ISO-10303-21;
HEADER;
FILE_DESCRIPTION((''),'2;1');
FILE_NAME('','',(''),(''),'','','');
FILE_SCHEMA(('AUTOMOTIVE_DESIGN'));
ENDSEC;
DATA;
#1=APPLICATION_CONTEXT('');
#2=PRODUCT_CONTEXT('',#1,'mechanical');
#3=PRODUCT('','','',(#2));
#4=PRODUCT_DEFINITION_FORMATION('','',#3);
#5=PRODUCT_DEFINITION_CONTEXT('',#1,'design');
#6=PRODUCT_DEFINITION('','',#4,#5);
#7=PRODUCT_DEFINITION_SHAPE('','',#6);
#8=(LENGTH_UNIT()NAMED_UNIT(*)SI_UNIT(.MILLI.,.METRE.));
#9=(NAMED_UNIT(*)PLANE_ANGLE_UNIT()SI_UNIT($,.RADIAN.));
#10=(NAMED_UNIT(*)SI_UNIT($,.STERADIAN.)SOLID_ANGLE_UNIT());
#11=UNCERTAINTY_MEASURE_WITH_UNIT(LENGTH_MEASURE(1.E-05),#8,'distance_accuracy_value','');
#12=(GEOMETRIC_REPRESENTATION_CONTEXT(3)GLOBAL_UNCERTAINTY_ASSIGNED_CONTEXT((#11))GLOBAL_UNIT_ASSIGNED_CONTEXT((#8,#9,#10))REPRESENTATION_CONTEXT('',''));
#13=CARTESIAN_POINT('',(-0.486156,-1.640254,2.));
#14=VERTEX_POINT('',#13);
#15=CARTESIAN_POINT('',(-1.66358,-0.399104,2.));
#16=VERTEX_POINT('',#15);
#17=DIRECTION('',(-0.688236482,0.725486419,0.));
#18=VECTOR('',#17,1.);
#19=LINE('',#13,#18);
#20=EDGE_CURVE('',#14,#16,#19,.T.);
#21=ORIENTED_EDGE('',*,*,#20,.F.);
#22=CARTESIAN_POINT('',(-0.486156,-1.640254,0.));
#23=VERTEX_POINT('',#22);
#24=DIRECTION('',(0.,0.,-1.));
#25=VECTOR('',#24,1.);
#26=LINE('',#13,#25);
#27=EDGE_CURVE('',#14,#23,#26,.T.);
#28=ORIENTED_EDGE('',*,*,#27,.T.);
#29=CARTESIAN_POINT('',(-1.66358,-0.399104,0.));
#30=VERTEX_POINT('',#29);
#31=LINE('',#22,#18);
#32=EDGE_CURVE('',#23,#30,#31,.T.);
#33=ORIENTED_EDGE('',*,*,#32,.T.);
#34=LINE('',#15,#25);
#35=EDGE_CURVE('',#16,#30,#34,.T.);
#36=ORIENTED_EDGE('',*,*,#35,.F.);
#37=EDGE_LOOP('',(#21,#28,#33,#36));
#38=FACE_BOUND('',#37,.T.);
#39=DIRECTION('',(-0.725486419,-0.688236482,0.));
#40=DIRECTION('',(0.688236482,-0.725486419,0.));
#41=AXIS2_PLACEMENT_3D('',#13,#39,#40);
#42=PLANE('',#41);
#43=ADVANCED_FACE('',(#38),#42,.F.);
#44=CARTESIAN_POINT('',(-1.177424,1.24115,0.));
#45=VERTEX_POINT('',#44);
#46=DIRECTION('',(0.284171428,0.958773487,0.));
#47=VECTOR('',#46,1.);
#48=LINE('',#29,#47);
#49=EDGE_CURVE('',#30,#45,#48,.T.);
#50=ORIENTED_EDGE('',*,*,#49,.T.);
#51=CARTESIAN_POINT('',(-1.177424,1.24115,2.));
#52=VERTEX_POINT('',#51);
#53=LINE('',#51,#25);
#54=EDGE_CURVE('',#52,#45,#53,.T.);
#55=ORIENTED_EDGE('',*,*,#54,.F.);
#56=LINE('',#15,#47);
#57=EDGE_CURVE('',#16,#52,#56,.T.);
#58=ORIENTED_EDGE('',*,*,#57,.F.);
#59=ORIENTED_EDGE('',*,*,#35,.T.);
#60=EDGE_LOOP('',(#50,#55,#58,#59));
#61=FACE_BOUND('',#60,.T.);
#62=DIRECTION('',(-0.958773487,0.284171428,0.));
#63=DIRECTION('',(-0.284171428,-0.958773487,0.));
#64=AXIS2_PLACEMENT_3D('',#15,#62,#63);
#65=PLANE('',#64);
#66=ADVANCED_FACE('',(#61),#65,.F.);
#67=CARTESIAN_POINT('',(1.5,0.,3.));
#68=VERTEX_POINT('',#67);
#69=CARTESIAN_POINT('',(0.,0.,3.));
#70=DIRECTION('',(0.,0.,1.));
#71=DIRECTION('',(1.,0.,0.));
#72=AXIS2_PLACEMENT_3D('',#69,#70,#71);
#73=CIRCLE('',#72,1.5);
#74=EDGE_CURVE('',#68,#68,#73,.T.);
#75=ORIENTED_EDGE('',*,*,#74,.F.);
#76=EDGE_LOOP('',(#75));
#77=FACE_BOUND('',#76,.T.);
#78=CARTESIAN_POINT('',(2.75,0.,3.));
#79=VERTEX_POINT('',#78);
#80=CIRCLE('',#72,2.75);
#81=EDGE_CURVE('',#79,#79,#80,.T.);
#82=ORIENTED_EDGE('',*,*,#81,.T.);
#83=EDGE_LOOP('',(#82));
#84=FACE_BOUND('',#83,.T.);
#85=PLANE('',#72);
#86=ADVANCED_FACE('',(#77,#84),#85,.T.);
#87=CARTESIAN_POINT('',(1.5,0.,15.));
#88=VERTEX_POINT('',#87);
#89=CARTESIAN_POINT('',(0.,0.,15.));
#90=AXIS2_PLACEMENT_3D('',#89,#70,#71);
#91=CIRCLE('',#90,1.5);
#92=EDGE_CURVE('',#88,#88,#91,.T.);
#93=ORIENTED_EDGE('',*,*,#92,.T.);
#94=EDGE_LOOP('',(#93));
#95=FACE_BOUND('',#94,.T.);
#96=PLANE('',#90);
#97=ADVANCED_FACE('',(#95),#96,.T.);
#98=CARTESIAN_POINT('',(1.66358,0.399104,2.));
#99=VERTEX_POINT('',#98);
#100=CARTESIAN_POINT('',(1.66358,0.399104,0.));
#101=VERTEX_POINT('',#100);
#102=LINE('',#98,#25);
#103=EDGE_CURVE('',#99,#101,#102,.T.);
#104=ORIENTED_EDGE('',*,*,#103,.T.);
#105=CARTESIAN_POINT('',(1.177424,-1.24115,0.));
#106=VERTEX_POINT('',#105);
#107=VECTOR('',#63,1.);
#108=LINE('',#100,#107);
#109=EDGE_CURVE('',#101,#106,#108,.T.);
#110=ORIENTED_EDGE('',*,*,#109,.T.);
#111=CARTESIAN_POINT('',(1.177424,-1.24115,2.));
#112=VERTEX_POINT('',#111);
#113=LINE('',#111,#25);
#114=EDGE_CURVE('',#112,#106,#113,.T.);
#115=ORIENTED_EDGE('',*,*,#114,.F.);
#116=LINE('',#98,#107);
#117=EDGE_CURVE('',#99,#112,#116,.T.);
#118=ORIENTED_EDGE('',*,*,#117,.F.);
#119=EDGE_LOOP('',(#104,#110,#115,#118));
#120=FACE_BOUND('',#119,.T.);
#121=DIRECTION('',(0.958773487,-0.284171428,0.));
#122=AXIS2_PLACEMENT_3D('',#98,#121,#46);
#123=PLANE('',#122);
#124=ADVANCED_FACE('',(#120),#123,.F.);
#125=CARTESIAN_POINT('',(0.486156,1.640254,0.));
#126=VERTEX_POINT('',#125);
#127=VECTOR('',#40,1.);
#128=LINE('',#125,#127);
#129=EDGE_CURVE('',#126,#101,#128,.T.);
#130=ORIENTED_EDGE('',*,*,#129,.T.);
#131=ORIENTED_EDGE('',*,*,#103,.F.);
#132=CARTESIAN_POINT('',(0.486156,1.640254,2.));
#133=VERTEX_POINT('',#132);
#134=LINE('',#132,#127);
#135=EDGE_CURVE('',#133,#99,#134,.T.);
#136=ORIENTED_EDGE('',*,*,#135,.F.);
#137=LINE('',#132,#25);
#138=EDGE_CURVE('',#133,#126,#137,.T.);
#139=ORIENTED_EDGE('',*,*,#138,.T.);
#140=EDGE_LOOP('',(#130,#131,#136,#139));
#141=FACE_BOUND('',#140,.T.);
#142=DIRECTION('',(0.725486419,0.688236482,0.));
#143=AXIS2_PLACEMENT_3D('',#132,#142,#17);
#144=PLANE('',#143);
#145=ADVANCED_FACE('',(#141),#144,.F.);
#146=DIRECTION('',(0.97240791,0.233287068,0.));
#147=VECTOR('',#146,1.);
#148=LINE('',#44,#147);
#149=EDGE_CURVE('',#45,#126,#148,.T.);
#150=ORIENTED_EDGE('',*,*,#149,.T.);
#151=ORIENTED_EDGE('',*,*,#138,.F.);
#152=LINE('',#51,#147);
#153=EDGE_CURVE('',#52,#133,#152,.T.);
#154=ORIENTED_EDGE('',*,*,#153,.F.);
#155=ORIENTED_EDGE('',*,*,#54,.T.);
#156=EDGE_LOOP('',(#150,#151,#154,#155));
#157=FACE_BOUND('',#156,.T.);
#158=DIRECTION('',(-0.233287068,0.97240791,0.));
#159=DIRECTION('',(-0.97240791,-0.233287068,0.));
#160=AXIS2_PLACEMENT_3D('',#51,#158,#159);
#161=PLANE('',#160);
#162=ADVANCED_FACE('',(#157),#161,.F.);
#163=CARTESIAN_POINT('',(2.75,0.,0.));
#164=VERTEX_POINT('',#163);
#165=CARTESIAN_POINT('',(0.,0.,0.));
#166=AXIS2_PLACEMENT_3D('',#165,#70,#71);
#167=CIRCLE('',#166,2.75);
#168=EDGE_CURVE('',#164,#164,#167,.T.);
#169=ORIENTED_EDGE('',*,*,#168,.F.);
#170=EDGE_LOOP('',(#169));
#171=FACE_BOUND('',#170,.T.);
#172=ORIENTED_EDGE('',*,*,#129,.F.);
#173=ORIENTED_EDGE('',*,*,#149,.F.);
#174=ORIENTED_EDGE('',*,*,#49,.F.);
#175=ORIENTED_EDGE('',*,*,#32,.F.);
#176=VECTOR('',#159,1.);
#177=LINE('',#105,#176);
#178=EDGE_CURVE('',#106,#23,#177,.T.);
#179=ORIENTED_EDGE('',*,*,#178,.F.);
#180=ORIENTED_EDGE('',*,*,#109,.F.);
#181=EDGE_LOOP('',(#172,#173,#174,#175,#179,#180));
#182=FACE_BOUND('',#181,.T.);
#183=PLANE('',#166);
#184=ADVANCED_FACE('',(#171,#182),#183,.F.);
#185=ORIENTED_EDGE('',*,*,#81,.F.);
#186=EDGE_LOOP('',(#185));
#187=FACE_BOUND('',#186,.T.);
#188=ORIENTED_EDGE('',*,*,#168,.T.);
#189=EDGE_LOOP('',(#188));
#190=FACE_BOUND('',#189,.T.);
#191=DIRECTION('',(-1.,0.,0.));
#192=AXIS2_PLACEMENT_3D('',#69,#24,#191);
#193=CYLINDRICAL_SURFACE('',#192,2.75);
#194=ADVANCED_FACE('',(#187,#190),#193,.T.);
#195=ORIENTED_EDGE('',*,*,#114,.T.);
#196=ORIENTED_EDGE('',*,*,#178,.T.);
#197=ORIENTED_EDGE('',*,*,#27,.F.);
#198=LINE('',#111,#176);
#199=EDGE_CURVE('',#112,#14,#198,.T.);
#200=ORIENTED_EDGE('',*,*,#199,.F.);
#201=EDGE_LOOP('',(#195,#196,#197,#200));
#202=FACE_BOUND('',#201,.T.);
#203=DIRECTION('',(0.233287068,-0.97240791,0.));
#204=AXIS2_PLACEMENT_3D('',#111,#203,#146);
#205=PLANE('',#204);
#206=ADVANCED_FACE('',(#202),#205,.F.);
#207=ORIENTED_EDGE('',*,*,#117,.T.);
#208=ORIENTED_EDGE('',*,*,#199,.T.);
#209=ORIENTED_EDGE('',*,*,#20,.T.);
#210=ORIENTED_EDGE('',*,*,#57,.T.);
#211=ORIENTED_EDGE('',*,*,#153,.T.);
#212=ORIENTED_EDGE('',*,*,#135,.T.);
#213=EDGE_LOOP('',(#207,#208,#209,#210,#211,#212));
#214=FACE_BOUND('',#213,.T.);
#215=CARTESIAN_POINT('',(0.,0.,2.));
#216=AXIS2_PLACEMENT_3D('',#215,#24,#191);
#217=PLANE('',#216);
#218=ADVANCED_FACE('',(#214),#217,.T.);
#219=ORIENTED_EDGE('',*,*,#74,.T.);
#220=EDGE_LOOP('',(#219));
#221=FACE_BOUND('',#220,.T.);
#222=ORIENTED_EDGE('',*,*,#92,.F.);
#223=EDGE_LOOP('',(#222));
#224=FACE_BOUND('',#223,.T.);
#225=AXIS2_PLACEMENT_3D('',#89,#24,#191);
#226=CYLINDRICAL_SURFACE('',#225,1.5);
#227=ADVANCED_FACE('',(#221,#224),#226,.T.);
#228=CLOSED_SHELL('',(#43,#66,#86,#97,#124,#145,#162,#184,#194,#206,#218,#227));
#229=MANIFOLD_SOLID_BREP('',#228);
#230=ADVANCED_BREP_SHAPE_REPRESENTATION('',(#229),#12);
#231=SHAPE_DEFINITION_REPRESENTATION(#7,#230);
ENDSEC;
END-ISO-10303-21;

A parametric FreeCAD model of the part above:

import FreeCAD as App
import Part
import Sketcher
from FreeCAD import Vector

doc = App.newDocument("Part")
params = doc.addObject("Spreadsheet::Sheet", "Params")
for row, (alias, value) in enumerate([
    ("sketch1_diameter", "5.5 mm"),
    ("pad1_length", "3 mm"),
    ("sketch2_diameter", "3 mm"),
    ("pad2_length", "12 mm"),
    ("pocket1_length", "2 mm"),
], start=1):
    params.set(f"A{row}", alias)
    params.set(f"B{row}", "=" + value)
    params.setAlias(f"B{row}", alias)

body = doc.addObject("PartDesign::Body", "Body")

sketch1 = doc.addObject("Sketcher::SketchObject", "Sketch")
body.addObject(sketch1)
sketch1.AttachmentSupport = (doc.XY_Plane, [""])
sketch1.MapMode = "FlatFace"
sketch1.addGeometry(Part.Circle(Vector(0, 0, 0), Vector(0, 0, 1), 2.8), False)
sketch1.addConstraint([
    Sketcher.Constraint("Coincident", 0, 3, -1, 1),
    Sketcher.Constraint("Diameter", 0, 5.5),
])
sketch1.setExpression("Constraints[1]", "Params.sketch1_diameter")
pad1 = doc.addObject("PartDesign::Pad", "Pad")
body.addObject(pad1)
pad1.Profile = sketch1
pad1.setExpression("Length", "Params.pad1_length")

sketch2 = doc.addObject("Sketcher::SketchObject", "Sketch001")
body.addObject(sketch2)
sketch2.AttachmentSupport = (doc.XY_Plane, [""])
sketch2.MapMode = "FlatFace"
sketch2.AttachmentOffset = App.Placement(Vector(0, 0, 3), App.Rotation())
sketch2.addGeometry(Part.Circle(Vector(0, 0, 0), Vector(0, 0, 1), 1.5), False)
sketch2.addConstraint([
    Sketcher.Constraint("Coincident", 0, 3, -1, 1),
    Sketcher.Constraint("Diameter", 0, 3.0),
])
sketch2.setExpression("Constraints[1]", "Params.sketch2_diameter")
pad2 = doc.addObject("PartDesign::Pad", "Pad001")
body.addObject(pad2)
pad2.Profile = sketch2
pad2.setExpression("Length", "Params.pad2_length")

sketch3 = doc.addObject("Sketcher::SketchObject", "Sketch002")
body.addObject(sketch3)
sketch3.AttachmentSupport = (doc.XY_Plane, [""])
sketch3.MapMode = "FlatFace"
sketch3.addGeometry([
    Part.LineSegment(Vector(-1.7, -0.4, 0), Vector(-1.2, 1.2, 0)),
    Part.LineSegment(Vector(-1.2, 1.2, 0), Vector(0.5, 1.6, 0)),
    Part.LineSegment(Vector(0.5, 1.6, 0), Vector(1.7, 0.4, 0)),
    Part.LineSegment(Vector(1.7, 0.4, 0), Vector(1.2, -1.2, 0)),
    Part.LineSegment(Vector(1.2, -1.2, 0), Vector(-0.5, -1.6, 0)),
    Part.LineSegment(Vector(-0.5, -1.6, 0), Vector(-1.7, -0.4, 0)),
], False)
sketch3.addConstraint([
    Sketcher.Constraint("Coincident", 0, 2, 1, 1),
    Sketcher.Constraint("Coincident", 1, 2, 2, 1),
    Sketcher.Constraint("Coincident", 2, 2, 3, 1),
    Sketcher.Constraint("Coincident", 3, 2, 4, 1),
    Sketcher.Constraint("Coincident", 4, 2, 5, 1),
    Sketcher.Constraint("Coincident", 5, 2, 0, 1),
    Sketcher.Constraint("Symmetric", 0, 2, 3, 2, -1, 1),
    Sketcher.Constraint("Symmetric", 1, 2, 4, 2, -1, 1),
    Sketcher.Constraint("Symmetric", 2, 2, 5, 2, -1, 1),
    Sketcher.Constraint("Equal", 0, 1),
    Sketcher.Constraint("Equal", 1, 2),
    Sketcher.Constraint("DistanceY", 3, 2, 0, 2, 2.482301),
    Sketcher.Constraint("DistanceX", -1, 1, 2, 2, 1.66358),
    Sketcher.Constraint("DistanceX", 0, 2, 1, 2, 1.66358),
    Sketcher.Constraint("DistanceY", 2, 2, 1, 2, 1.24115),
])
pocket1 = doc.addObject("PartDesign::Pocket", "Pocket")
body.addObject(pocket1)
pocket1.Profile = sketch3
pocket1.setExpression("Length", "Params.pocket1_length")
pocket1.Reversed = True

doc.recompute()
